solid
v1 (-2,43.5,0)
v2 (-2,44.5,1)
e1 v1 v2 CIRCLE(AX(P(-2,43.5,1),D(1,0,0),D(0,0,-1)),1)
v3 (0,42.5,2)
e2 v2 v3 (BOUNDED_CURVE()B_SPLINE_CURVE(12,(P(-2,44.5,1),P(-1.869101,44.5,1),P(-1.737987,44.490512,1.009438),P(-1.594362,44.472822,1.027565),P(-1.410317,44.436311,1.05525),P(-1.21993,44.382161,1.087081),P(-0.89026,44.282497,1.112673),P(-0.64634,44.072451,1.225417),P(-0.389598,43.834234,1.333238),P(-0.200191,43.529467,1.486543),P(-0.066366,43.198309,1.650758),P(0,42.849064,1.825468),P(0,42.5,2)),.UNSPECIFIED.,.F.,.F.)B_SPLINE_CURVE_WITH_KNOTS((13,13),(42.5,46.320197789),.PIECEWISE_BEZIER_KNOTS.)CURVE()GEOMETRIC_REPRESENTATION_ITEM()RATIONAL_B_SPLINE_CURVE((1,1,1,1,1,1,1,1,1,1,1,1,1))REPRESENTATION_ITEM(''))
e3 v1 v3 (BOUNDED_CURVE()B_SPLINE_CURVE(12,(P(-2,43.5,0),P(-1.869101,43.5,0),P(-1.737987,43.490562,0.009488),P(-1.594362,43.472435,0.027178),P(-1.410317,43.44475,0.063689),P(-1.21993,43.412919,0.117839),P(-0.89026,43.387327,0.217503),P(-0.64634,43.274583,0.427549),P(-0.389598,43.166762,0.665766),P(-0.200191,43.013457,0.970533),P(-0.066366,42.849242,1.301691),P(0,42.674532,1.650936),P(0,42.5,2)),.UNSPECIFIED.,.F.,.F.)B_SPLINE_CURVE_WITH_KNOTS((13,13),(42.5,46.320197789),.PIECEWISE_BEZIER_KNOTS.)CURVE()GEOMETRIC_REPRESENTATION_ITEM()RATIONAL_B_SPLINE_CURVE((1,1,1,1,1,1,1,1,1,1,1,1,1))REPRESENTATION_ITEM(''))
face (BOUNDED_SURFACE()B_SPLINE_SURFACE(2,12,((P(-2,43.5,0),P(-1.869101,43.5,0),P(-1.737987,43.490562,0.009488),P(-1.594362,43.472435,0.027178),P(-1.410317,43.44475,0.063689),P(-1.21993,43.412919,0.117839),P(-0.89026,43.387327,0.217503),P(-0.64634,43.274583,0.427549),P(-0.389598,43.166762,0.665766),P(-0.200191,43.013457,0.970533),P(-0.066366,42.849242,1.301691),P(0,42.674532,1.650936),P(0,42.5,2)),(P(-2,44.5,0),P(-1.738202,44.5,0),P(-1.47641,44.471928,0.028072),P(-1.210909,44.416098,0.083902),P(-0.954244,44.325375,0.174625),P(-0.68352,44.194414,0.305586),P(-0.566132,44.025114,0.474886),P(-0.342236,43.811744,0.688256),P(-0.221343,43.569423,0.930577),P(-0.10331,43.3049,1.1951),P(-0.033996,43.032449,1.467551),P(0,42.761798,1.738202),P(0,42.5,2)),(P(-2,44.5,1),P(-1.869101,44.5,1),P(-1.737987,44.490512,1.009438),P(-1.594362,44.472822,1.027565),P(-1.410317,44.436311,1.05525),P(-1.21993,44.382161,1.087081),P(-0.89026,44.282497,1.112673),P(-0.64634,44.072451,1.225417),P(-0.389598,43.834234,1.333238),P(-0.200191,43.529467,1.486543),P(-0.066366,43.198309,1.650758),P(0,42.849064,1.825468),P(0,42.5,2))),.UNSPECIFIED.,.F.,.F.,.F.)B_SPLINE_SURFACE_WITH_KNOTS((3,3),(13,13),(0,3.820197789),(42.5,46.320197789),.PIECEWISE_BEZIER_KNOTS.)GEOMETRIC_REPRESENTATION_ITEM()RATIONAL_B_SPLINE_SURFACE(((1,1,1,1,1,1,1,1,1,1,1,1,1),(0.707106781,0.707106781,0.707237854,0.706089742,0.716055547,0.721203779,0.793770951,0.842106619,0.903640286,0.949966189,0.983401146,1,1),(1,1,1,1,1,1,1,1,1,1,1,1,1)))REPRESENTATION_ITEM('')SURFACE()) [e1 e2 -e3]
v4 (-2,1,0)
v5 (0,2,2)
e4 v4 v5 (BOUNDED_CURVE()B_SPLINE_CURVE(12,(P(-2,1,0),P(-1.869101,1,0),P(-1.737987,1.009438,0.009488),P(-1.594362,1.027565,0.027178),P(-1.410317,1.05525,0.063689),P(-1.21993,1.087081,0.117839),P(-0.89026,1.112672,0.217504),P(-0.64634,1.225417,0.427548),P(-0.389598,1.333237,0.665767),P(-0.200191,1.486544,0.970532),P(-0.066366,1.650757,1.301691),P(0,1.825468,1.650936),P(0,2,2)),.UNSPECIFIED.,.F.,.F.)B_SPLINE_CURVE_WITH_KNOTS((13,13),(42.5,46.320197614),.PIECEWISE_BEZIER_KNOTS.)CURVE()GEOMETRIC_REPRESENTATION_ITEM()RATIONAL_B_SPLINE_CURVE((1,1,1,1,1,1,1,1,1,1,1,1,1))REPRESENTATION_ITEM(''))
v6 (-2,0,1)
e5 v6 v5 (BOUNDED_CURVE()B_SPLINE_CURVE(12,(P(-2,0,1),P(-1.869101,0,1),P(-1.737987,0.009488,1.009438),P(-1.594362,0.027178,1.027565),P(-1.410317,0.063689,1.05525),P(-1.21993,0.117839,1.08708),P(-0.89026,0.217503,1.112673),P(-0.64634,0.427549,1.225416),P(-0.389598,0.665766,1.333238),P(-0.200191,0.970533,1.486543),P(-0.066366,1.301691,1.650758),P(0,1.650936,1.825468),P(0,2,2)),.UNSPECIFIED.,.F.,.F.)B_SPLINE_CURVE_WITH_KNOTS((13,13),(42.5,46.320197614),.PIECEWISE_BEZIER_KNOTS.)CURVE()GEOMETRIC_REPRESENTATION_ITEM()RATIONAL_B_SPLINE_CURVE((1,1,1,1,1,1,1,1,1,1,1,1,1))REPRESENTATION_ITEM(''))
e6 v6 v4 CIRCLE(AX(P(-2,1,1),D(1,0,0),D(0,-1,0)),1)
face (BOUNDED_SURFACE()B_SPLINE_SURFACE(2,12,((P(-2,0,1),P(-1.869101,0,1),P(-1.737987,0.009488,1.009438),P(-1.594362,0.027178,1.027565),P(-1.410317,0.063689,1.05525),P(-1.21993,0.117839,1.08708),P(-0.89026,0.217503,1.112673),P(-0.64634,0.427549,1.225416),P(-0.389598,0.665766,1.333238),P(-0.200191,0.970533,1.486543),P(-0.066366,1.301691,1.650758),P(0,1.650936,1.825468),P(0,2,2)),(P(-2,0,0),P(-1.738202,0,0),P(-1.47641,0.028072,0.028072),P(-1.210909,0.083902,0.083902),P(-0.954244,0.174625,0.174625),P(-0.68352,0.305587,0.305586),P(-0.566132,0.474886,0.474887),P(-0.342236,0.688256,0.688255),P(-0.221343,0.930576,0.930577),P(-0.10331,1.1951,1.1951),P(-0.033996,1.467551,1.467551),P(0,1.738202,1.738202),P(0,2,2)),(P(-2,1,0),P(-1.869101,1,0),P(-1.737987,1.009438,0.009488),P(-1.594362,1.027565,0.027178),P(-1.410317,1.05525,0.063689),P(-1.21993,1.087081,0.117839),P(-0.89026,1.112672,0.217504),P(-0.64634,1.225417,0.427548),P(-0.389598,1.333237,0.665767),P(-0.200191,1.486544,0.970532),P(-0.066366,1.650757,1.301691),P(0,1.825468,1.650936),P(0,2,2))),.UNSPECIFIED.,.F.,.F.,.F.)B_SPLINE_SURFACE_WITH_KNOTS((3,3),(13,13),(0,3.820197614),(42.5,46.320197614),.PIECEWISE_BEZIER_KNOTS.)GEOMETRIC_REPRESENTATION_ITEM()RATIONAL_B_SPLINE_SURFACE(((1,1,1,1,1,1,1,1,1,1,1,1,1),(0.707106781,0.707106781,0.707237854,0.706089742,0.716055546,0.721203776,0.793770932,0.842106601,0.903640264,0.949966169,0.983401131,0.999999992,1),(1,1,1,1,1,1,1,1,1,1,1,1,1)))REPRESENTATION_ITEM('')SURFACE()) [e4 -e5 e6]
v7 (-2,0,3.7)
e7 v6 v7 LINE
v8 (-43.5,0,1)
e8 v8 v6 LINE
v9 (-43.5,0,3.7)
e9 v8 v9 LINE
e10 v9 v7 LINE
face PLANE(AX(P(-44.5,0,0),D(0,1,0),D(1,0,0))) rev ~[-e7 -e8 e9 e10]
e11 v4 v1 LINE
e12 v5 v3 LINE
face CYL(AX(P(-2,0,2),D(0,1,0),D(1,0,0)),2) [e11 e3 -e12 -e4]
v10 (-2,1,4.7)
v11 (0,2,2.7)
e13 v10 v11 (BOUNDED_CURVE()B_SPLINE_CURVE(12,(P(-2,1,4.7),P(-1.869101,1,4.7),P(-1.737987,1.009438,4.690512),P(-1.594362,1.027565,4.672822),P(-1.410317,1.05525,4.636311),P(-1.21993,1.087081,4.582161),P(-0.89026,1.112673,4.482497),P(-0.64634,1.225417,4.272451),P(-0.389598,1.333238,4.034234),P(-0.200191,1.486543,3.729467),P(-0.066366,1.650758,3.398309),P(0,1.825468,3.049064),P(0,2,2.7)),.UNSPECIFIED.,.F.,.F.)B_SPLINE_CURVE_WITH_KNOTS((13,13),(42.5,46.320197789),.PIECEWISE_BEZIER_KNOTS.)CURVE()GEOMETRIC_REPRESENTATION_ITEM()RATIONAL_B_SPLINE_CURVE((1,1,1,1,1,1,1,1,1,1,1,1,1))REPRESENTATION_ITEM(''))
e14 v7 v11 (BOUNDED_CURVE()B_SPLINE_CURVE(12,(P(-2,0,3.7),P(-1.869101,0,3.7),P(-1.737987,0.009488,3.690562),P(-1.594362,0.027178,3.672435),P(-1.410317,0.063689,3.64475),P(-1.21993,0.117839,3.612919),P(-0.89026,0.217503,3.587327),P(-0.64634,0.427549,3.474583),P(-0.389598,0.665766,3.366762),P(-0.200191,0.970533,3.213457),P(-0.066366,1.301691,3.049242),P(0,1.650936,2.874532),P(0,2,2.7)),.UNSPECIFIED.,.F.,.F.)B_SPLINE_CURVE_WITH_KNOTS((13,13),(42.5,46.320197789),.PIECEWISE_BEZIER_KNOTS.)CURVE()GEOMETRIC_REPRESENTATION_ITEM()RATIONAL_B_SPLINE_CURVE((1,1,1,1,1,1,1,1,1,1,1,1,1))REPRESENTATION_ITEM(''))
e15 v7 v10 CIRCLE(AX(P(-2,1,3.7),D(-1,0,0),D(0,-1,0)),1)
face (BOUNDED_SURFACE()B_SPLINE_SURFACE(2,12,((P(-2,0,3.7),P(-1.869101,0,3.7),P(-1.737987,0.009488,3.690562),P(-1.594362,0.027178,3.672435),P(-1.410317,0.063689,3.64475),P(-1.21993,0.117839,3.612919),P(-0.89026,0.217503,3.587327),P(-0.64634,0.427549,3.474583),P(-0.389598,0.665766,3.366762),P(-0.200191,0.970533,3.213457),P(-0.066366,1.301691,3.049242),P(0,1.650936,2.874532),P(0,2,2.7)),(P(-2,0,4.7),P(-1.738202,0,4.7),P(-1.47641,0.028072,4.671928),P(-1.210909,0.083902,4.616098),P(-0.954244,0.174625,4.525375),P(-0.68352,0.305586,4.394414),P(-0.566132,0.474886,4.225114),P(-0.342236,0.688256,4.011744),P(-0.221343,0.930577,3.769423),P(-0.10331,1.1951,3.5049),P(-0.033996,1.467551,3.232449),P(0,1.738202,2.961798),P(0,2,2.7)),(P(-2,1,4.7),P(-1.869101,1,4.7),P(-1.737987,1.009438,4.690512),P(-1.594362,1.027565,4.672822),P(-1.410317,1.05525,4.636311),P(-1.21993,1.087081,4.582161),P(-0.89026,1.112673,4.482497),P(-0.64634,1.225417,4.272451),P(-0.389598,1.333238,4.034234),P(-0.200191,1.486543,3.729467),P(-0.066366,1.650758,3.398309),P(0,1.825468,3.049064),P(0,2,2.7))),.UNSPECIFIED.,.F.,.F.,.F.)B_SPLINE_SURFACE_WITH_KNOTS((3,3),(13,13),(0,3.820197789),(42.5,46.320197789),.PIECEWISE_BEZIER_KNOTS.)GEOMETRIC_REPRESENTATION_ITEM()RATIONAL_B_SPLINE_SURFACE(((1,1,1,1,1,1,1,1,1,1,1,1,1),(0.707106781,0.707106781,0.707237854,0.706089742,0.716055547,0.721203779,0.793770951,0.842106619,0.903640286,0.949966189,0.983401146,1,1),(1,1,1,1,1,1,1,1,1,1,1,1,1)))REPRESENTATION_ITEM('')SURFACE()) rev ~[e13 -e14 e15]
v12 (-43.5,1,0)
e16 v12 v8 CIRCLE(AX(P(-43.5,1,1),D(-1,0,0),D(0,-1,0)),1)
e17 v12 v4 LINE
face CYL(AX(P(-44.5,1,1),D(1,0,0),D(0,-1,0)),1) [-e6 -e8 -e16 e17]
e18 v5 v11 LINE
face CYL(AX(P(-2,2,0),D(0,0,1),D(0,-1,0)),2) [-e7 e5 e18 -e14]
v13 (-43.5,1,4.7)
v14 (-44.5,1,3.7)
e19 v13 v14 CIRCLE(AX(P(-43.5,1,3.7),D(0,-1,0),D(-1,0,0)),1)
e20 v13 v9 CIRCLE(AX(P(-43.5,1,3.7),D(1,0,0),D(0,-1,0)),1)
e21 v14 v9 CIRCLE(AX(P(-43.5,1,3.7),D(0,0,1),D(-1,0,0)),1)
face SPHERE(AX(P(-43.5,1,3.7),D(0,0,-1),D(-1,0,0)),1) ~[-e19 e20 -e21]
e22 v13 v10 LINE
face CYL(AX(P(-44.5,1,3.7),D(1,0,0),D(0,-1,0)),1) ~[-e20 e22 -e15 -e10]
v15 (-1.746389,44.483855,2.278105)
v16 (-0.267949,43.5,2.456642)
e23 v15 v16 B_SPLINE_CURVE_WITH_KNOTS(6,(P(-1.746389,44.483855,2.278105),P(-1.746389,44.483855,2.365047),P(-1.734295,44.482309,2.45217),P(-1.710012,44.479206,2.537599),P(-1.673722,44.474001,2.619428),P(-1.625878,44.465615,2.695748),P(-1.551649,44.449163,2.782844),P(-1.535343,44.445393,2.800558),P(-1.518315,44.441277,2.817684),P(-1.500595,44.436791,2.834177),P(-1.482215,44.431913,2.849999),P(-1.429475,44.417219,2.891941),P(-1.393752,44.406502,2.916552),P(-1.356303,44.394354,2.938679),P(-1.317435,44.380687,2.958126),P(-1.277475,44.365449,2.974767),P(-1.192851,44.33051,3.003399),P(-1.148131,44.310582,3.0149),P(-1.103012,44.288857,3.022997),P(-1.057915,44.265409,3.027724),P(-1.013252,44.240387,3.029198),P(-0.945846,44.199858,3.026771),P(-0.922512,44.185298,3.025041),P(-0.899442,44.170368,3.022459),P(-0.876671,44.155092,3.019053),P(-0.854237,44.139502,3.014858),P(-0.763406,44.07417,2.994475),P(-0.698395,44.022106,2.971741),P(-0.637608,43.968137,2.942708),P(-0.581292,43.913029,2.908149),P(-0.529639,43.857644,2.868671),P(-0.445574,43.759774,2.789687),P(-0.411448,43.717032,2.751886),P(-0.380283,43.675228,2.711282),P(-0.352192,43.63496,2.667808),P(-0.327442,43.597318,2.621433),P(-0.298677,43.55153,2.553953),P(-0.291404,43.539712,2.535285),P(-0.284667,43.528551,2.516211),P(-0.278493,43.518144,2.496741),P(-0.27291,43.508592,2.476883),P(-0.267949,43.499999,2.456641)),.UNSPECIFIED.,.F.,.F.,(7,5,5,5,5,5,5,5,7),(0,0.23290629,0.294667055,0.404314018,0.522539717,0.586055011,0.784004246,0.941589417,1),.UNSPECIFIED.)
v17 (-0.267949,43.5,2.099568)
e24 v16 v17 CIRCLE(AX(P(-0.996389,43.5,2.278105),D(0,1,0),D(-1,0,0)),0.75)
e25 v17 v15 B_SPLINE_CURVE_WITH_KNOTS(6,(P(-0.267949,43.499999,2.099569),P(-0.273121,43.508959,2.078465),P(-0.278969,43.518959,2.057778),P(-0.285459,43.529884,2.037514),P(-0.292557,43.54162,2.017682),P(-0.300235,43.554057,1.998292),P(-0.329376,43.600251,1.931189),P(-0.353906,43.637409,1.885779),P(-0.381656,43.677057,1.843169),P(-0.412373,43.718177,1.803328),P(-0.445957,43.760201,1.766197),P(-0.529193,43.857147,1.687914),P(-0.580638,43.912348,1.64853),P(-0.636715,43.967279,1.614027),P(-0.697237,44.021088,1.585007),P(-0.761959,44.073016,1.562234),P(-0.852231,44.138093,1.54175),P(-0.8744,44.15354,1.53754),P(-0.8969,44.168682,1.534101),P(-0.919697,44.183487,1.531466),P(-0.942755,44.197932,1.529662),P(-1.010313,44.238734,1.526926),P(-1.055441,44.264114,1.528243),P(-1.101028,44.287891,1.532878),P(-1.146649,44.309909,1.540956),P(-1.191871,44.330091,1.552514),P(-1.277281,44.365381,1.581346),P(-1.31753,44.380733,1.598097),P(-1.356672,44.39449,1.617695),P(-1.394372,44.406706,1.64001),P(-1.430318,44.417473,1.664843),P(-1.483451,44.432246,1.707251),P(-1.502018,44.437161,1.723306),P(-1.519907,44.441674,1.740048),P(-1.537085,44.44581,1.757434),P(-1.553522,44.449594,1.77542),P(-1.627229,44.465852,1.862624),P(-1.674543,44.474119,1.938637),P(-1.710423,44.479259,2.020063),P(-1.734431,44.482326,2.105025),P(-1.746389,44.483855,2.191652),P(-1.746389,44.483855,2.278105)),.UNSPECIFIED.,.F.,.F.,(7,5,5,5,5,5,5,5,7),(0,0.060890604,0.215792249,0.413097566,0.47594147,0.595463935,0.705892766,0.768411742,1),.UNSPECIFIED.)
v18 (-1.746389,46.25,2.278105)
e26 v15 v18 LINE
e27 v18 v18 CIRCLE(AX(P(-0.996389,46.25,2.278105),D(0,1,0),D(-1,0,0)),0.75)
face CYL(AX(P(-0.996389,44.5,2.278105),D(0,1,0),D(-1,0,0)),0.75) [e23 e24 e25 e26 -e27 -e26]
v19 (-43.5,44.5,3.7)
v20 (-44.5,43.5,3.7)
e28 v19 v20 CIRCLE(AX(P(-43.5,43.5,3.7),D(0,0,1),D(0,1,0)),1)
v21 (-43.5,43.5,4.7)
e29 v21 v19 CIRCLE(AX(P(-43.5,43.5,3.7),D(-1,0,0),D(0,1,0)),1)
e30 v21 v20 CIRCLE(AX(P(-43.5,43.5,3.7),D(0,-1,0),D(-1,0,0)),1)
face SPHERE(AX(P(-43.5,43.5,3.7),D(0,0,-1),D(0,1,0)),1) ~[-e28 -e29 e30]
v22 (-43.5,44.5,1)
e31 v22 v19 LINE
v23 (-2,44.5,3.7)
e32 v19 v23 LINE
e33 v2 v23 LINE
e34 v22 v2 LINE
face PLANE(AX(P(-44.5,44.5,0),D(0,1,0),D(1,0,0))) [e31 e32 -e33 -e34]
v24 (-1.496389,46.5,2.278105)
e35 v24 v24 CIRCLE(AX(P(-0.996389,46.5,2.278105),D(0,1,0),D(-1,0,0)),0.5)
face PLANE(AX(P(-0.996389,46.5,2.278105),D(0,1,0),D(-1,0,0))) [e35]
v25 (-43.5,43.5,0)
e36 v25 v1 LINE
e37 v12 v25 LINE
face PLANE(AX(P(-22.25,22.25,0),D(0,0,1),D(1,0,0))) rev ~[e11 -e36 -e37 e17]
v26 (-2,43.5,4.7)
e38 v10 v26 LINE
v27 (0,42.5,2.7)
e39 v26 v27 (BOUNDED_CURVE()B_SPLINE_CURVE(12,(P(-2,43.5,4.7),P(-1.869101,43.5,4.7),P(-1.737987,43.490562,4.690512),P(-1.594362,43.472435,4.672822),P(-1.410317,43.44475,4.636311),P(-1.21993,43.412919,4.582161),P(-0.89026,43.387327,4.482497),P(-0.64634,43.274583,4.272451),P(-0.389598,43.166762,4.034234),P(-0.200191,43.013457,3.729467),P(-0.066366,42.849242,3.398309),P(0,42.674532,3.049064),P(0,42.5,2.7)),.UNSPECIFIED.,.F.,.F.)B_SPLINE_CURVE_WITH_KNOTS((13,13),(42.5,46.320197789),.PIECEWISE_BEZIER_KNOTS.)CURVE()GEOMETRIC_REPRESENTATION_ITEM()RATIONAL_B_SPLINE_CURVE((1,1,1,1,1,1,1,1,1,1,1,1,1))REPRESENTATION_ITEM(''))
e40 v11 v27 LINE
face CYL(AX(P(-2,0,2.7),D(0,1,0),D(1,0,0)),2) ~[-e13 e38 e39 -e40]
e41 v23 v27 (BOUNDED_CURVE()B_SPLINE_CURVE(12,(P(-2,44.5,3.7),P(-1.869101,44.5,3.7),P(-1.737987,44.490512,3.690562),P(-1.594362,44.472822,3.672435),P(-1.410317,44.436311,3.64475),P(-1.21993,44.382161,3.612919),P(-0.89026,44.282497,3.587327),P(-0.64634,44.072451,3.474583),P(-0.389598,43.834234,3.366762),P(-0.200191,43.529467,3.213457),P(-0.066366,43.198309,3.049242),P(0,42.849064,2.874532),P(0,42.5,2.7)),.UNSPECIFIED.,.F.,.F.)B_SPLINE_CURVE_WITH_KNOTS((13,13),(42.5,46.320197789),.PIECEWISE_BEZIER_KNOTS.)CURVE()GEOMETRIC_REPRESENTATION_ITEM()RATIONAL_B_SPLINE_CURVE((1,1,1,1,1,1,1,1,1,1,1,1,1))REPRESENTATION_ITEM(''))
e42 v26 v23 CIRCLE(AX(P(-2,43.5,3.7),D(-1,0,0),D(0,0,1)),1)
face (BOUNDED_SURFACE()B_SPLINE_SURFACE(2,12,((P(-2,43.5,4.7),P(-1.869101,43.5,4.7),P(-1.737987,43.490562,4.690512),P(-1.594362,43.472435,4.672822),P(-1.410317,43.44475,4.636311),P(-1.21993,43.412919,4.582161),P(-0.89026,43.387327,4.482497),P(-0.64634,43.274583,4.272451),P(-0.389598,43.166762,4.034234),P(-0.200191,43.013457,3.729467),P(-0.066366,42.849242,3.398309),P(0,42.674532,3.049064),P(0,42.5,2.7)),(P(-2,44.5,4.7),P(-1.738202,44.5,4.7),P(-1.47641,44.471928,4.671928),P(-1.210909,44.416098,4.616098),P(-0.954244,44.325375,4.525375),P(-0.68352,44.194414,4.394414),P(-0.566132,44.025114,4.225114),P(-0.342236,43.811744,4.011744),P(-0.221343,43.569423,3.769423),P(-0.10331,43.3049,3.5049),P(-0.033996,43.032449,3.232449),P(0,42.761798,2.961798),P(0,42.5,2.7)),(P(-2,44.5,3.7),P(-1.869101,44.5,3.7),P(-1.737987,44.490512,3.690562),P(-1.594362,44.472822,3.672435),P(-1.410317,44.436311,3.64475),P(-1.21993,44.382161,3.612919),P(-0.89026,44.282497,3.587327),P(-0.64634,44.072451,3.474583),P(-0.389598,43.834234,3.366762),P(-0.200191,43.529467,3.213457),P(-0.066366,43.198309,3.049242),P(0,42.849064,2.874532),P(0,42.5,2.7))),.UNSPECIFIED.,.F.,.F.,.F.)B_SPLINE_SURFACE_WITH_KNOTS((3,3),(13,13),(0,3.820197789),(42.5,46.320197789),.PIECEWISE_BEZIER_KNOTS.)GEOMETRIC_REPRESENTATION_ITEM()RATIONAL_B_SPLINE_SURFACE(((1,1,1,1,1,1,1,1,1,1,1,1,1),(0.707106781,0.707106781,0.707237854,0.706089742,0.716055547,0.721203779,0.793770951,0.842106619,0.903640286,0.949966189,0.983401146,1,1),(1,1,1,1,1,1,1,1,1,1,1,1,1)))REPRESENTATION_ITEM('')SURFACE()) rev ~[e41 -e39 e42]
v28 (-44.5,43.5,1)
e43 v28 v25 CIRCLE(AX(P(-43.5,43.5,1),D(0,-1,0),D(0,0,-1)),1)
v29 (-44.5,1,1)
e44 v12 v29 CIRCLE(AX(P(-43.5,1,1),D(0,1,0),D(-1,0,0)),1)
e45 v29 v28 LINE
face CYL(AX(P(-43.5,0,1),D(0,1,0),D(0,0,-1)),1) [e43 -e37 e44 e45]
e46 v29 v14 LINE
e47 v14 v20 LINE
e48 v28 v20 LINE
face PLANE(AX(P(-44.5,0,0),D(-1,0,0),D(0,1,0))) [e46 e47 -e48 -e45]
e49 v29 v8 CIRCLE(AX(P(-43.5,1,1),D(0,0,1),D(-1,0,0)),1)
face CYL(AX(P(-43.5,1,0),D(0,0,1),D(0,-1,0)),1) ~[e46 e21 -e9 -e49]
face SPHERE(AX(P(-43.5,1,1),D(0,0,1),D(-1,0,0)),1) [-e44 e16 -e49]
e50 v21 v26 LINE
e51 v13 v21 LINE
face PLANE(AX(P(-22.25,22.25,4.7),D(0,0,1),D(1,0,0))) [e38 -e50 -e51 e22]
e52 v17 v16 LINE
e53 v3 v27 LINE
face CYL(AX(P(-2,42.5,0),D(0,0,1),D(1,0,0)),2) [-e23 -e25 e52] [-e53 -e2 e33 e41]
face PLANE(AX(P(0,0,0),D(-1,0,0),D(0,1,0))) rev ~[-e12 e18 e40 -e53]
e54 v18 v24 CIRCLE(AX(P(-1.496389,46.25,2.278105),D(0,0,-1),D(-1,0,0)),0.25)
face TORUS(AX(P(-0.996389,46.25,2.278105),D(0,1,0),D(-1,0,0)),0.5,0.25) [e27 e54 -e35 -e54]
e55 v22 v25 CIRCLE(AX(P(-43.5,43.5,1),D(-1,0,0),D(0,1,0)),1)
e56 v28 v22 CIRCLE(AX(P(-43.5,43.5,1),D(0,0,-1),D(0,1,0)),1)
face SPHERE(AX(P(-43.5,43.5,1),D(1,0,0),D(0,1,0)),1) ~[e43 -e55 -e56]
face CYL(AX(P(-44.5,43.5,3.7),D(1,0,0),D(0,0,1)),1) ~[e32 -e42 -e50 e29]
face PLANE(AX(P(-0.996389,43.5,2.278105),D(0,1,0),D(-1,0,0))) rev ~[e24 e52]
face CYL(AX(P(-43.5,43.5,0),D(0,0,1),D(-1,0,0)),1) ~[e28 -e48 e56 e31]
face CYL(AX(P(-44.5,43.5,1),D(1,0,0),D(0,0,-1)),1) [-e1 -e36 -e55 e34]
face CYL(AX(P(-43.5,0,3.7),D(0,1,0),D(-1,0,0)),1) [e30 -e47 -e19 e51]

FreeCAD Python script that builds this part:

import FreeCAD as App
import Part
import Sketcher

V = App.Vector
Q = App.Units.Quantity


def edges_at(feature, points):
    """Names of the edges that pass closest to the given points."""
    edges = feature.Shape.Edges
    near = lambda p: min(range(len(edges)), key=lambda i: edges[i].distToShape(Part.Vertex(*p))[0])
    return sorted({f"Edge{near(p) + 1}" for p in points})

doc = App.newDocument("Part")
params = doc.addObject("Spreadsheet::Sheet", "Params")
for row, (alias, value) in enumerate([
    ("sketch1_width", "44.5 mm"),
    ("pad1_length", "4.7 mm"),
    ("fillet_radius", "2 mm"),
    ("fillet2_radius", "1 mm"),
    ("sketch2_diameter", "1.5 mm"),
    ("pad2_length", "2 mm"),
    ("pad2_length2", "1 mm"),
    ("fillet3_radius", "0.25 mm"),
], start=1):
    params.set(f"A{row}", alias)
    params.set(f"B{row}", "=" + value)
    params.setAlias(f"B{row}", alias)

body = doc.addObject("PartDesign::Body", "Body")

sketch1 = body.newObject("Sketcher::SketchObject", "Sketch")
sketch1.AttachmentSupport = (doc.getObject("XY_Plane"), [""])
sketch1.MapMode = "FlatFace"
sketch1.addGeometry(Part.LineSegment(V(-44, 44, 0), V(-44, 0, 0)), False)
sketch1.addGeometry(Part.LineSegment(V(-44, 0, 0), V(0, 0, 0)), False)
sketch1.addGeometry(Part.LineSegment(V(0, 0, 0), V(0, 44, 0)), False)
sketch1.addGeometry(Part.LineSegment(V(0, 44, 0), V(-44, 44, 0)), False)
sketch1.addConstraint(Sketcher.Constraint("Coincident", 0, 2, 1, 1))
sketch1.addConstraint(Sketcher.Constraint("Coincident", 1, 2, 2, 1))
sketch1.addConstraint(Sketcher.Constraint("Coincident", 2, 2, 3, 1))
sketch1.addConstraint(Sketcher.Constraint("Coincident", 3, 2, 0, 1))
sketch1.addConstraint(Sketcher.Constraint("Vertical", 0))
sketch1.addConstraint(Sketcher.Constraint("Horizontal", 1))
sketch1.addConstraint(Sketcher.Constraint("Vertical", 2))
sketch1.addConstraint(Sketcher.Constraint("Horizontal", 3))
sketch1.addConstraint(Sketcher.Constraint("Coincident", 1, 2, -1, 1))
sketch1.addConstraint(Sketcher.Constraint("Equal", 3, 0))
sketch1.addConstraint(Sketcher.Constraint("DistanceX", 1, 1, 1, 2, Q("44.5 mm")))
sketch1.setExpression("Constraints[10]", "Params.sketch1_width")
pad1 = body.newObject("PartDesign::Pad", "Pad")
pad1.Profile = sketch1
pad1.setExpression("Length", "Params.pad1_length")
doc.recompute()

fillet = body.newObject("PartDesign::Fillet", "Fillet")
fillet.Base = (pad1, edges_at(pad1, [
    (0, 44.5, 2.35),
    (0, 0, 2.35),
    (0, 22.25, 0),
    (0, 22.25, 4.7),
]))
fillet.setExpression("Radius", "Params.fillet_radius")
doc.recompute()

fillet2 = body.newObject("PartDesign::Fillet", "Fillet001")
fillet2.Base = (fillet, edges_at(fillet, [
    (-23.25, 44.5, 0),
    (-2, 44.5, 2.35),
    (-44.5, 44.5, 2.35),
    (-23.25, 44.5, 4.7),
    (-44.5, 0, 2.35),
    (-44.5, 22.25, 0),
    (-44.5, 22.25, 4.7),
    (-23.25, 0, 0),
    (-2, 0, 2.35),
    (-23.25, 0, 4.7),
]))
fillet2.setExpression("Radius", "Params.fillet2_radius")

sketch2 = body.newObject("Sketcher::SketchObject", "Sketch001")
sketch2.AttachmentSupport = (doc.getObject("XZ_Plane"), [""])
sketch2.MapMode = "FlatFace"
sketch2.AttachmentOffset = App.Placement(V(0, 0, -44.5), App.Rotation())
sketch2.addGeometry(Part.Circle(V(-1, 2.3, 0), V(0, 0, 1), 0.8), False)
sketch2.addConstraint(Sketcher.Constraint("Diameter", 0, Q("1.5 mm")))
sketch2.addConstraint(Sketcher.Constraint("DistanceX", 0, 3, -1, 1, Q("0.996389 mm")))
sketch2.addConstraint(Sketcher.Constraint("DistanceY", -1, 1, 0, 3, Q("2.278105 mm")))
sketch2.setExpression("Constraints[0]", "Params.sketch2_diameter")
pad2 = body.newObject("PartDesign::Pad", "Pad001")
pad2.Profile = sketch2
pad2.Type = "TwoLengths"
pad2.setExpression("Length", "Params.pad2_length")
pad2.setExpression("Length2", "Params.pad2_length2")
pad2.Reversed = True
doc.recompute()

fillet3 = body.newObject("PartDesign::Fillet", "Fillet002")
fillet3.Base = (pad2, edges_at(pad2, [(-0.246, 46.5, 2.278)]))
fillet3.setExpression("Radius", "Params.fillet3_radius")

doc.recompute()
